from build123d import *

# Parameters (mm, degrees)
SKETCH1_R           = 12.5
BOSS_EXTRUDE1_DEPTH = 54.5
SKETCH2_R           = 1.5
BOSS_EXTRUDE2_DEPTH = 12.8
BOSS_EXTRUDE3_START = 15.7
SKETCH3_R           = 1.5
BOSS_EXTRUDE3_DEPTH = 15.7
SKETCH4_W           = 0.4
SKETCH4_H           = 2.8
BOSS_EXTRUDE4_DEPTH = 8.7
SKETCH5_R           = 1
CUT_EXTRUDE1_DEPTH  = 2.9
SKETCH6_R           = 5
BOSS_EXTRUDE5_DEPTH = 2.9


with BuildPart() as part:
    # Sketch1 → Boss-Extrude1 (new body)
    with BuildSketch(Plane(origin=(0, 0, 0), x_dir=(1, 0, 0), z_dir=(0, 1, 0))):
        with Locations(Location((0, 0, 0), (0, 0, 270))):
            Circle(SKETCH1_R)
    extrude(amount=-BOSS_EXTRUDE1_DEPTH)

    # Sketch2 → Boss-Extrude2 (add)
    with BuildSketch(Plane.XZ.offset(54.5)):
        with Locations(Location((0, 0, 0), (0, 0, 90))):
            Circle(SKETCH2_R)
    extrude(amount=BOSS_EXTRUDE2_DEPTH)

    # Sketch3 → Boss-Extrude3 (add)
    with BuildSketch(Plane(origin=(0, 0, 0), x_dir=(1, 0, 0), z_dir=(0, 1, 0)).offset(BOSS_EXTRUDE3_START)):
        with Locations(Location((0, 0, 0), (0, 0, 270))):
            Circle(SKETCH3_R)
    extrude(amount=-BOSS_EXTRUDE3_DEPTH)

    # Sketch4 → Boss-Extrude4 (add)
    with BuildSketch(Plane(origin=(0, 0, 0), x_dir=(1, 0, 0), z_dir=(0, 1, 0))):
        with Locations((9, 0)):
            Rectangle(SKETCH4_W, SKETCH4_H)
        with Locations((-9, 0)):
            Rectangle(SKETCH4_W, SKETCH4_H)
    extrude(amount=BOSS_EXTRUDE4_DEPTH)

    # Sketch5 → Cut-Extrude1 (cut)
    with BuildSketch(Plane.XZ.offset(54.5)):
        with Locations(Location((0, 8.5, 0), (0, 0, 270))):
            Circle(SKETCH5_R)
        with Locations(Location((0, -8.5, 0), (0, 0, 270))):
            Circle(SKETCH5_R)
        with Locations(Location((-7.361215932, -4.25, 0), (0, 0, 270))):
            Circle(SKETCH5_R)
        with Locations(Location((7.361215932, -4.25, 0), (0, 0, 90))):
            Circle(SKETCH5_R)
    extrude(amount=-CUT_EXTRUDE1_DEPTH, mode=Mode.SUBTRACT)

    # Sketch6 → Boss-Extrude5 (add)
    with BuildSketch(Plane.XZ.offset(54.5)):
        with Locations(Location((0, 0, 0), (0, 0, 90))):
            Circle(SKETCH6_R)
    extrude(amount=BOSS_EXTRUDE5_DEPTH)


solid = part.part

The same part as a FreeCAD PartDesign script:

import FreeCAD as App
import Part
import Sketcher

V = App.Vector
Q = App.Units.Quantity


def add_polygon(sketch, points):
    """Adds a closed chain of lines whose ends are joined by coincident constraints."""
    first, n = sketch.GeometryCount, len(points)
    for a, b in zip(points, points[1:] + points[:1]):
        sketch.addGeometry(Part.LineSegment(App.Vector(*a, 0), App.Vector(*b, 0)), False)
    for i in range(n):
        sketch.addConstraint(Sketcher.Constraint("Coincident", first + i, 2, first + (i + 1) % n, 1))

doc = App.newDocument("Part")
body = doc.addObject("PartDesign::Body", "Body")

# Sketch on XZ plane
sketch1 = body.newObject("Sketcher::SketchObject", "Sketch")
sketch1.AttachmentSupport = (doc.getObject("XZ_Plane"), [""])
sketch1.MapMode = "FlatFace"
sketch1.addGeometry(Part.Circle(V(0, 0, 0), V(0, 0, 1), 12.5), False)
sketch1.addConstraint([
    Sketcher.Constraint("Coincident", 0, 3, -1, 1),
    Sketcher.Constraint("Diameter", 0, Q("25 mm")),
])
pad1 = body.newObject("PartDesign::Pad", "Pad")
pad1.Profile = sketch1
pad1.Length = 54.5

# Sketch on XZ plane
sketch2 = body.newObject("Sketcher::SketchObject", "Sketch001")
sketch2.AttachmentSupport = (doc.getObject("XZ_Plane"), [""])
sketch2.MapMode = "FlatFace"
sketch2.AttachmentOffset = App.Placement(V(0, 0, 54.5), App.Rotation())
sketch2.addGeometry(Part.Circle(V(0, 0, 0), V(0, 0, 1), 1.5), False)
sketch2.addConstraint([
    Sketcher.Constraint("Coincident", 0, 3, -1, 1),
    Sketcher.Constraint("Diameter", 0, Q("3 mm")),
])
pad2 = body.newObject("PartDesign::Pad", "Pad001")
pad2.Profile = sketch2
pad2.Length = 12.8

# Sketch on XZ plane
sketch3 = body.newObject("Sketcher::SketchObject", "Sketch002")
sketch3.AttachmentSupport = (doc.getObject("XZ_Plane"), [""])
sketch3.MapMode = "FlatFace"
sketch3.AttachmentOffset = App.Placement(V(0, 0, -15.7), App.Rotation())
sketch3.addGeometry(Part.Circle(V(0, 0, 0), V(0, 0, 1), 1.5), False)
sketch3.addConstraint([
    Sketcher.Constraint("Coincident", 0, 3, -1, 1),
    Sketcher.Constraint("Diameter", 0, Q("3 mm")),
])
pad3 = body.newObject("PartDesign::Pad", "Pad002")
pad3.Profile = sketch3
pad3.Length = 15.7

# Sketch on XZ plane
sketch4 = body.newObject("Sketcher::SketchObject", "Sketch003")
sketch4.AttachmentSupport = (doc.getObject("XZ_Plane"), [""])
sketch4.MapMode = "FlatFace"
add_polygon(sketch4, [(8.8, -1.4), (8.8, 1.4), (9.2, 1.4), (9.2, -1.4)])  # lines 0-3
add_polygon(sketch4, [(-9.2, -1.4), (-9.2, 1.4), (-8.8, 1.4), (-8.8, -1.4)])  # lines 4-7
sketch4.addConstraint([
    Sketcher.Constraint("Vertical", 0),
    Sketcher.Constraint("Horizontal", 1),
    Sketcher.Constraint("Vertical", 2),
    Sketcher.Constraint("Horizontal", 3),
    Sketcher.Constraint("Vertical", 4),
    Sketcher.Constraint("Horizontal", 5),
    Sketcher.Constraint("Vertical", 6),
    Sketcher.Constraint("Horizontal", 7),
    Sketcher.Constraint("Symmetric", 2, 2, 4, 2, -1, 1),
    Sketcher.Constraint("Symmetric", 0, 2, 6, 2, -1, 1),
    Sketcher.Constraint("Horizontal", 1, 2, 4, 2),
    Sketcher.Constraint("DistanceX", 1, 1, 1, 2, Q("0.4 mm")),
    Sketcher.Constraint("DistanceY", 0, 1, 0, 2, Q("2.8 mm")),
    Sketcher.Constraint("DistanceX", 4, 2, 0, 2, Q("18 mm")),
])
pad4 = body.newObject("PartDesign::Pad", "Pad003")
pad4.Profile = sketch4
pad4.Length = 8.7
pad4.Reversed = True

# Sketch on XZ plane
sketch5 = body.newObject("Sketcher::SketchObject", "Sketch004")
sketch5.AttachmentSupport = (doc.getObject("XZ_Plane"), [""])
sketch5.MapMode = "FlatFace"
sketch5.AttachmentOffset = App.Placement(V(0, 0, 54.5), App.Rotation())
sketch5.addGeometry([
    Part.Circle(V(0, 8.5, 0), V(0, 0, 1), 1),
    Part.Circle(V(0, -8.5, 0), V(0, 0, 1), 1),
    Part.Circle(V(-7.361216, -4.25, 0), V(0, 0, 1), 1),
    Part.Circle(V(7.361216, -4.25, 0), V(0, 0, 1), 1),
], False)
sketch5.addConstraint([
    Sketcher.Constraint("Equal", 0, 1),
    Sketcher.Constraint("Equal", 1, 2),
    Sketcher.Constraint("Equal", 2, 3),
    Sketcher.Constraint("Symmetric", 0, 3, 1, 3, -1, 1),
    Sketcher.Constraint("Symmetric", 2, 3, 3, 3, -2),
    Sketcher.Constraint("PointOnObject", 0, 3, -2),
    Sketcher.Constraint("Diameter", 0, Q("2 mm")),
    Sketcher.Constraint("DistanceY", 1, 3, 0, 3, Q("17 mm")),
    Sketcher.Constraint("DistanceY", 2, 3, -1, 1, Q("4.25 mm")),
    Sketcher.Constraint("DistanceX", 2, 3, 3, 3, Q("14.722432 mm")),
])
pocket1 = body.newObject("PartDesign::Pocket", "Pocket")
pocket1.Profile = sketch5
pocket1.Length = 2.9

# Sketch on XZ plane
sketch6 = body.newObject("Sketcher::SketchObject", "Sketch005")
sketch6.AttachmentSupport = (doc.getObject("XZ_Plane"), [""])
sketch6.MapMode = "FlatFace"
sketch6.AttachmentOffset = App.Placement(V(0, 0, 54.5), App.Rotation())
sketch6.addGeometry(Part.Circle(V(0, 0, 0), V(0, 0, 1), 5), False)
sketch6.addConstraint([
    Sketcher.Constraint("Coincident", 0, 3, -1, 1),
    Sketcher.Constraint("Diameter", 0, Q("10 mm")),
])
pad5 = body.newObject("PartDesign::Pad", "Pad004")
pad5.Profile = sketch6
pad5.Length = 2.9

doc.recompute()
